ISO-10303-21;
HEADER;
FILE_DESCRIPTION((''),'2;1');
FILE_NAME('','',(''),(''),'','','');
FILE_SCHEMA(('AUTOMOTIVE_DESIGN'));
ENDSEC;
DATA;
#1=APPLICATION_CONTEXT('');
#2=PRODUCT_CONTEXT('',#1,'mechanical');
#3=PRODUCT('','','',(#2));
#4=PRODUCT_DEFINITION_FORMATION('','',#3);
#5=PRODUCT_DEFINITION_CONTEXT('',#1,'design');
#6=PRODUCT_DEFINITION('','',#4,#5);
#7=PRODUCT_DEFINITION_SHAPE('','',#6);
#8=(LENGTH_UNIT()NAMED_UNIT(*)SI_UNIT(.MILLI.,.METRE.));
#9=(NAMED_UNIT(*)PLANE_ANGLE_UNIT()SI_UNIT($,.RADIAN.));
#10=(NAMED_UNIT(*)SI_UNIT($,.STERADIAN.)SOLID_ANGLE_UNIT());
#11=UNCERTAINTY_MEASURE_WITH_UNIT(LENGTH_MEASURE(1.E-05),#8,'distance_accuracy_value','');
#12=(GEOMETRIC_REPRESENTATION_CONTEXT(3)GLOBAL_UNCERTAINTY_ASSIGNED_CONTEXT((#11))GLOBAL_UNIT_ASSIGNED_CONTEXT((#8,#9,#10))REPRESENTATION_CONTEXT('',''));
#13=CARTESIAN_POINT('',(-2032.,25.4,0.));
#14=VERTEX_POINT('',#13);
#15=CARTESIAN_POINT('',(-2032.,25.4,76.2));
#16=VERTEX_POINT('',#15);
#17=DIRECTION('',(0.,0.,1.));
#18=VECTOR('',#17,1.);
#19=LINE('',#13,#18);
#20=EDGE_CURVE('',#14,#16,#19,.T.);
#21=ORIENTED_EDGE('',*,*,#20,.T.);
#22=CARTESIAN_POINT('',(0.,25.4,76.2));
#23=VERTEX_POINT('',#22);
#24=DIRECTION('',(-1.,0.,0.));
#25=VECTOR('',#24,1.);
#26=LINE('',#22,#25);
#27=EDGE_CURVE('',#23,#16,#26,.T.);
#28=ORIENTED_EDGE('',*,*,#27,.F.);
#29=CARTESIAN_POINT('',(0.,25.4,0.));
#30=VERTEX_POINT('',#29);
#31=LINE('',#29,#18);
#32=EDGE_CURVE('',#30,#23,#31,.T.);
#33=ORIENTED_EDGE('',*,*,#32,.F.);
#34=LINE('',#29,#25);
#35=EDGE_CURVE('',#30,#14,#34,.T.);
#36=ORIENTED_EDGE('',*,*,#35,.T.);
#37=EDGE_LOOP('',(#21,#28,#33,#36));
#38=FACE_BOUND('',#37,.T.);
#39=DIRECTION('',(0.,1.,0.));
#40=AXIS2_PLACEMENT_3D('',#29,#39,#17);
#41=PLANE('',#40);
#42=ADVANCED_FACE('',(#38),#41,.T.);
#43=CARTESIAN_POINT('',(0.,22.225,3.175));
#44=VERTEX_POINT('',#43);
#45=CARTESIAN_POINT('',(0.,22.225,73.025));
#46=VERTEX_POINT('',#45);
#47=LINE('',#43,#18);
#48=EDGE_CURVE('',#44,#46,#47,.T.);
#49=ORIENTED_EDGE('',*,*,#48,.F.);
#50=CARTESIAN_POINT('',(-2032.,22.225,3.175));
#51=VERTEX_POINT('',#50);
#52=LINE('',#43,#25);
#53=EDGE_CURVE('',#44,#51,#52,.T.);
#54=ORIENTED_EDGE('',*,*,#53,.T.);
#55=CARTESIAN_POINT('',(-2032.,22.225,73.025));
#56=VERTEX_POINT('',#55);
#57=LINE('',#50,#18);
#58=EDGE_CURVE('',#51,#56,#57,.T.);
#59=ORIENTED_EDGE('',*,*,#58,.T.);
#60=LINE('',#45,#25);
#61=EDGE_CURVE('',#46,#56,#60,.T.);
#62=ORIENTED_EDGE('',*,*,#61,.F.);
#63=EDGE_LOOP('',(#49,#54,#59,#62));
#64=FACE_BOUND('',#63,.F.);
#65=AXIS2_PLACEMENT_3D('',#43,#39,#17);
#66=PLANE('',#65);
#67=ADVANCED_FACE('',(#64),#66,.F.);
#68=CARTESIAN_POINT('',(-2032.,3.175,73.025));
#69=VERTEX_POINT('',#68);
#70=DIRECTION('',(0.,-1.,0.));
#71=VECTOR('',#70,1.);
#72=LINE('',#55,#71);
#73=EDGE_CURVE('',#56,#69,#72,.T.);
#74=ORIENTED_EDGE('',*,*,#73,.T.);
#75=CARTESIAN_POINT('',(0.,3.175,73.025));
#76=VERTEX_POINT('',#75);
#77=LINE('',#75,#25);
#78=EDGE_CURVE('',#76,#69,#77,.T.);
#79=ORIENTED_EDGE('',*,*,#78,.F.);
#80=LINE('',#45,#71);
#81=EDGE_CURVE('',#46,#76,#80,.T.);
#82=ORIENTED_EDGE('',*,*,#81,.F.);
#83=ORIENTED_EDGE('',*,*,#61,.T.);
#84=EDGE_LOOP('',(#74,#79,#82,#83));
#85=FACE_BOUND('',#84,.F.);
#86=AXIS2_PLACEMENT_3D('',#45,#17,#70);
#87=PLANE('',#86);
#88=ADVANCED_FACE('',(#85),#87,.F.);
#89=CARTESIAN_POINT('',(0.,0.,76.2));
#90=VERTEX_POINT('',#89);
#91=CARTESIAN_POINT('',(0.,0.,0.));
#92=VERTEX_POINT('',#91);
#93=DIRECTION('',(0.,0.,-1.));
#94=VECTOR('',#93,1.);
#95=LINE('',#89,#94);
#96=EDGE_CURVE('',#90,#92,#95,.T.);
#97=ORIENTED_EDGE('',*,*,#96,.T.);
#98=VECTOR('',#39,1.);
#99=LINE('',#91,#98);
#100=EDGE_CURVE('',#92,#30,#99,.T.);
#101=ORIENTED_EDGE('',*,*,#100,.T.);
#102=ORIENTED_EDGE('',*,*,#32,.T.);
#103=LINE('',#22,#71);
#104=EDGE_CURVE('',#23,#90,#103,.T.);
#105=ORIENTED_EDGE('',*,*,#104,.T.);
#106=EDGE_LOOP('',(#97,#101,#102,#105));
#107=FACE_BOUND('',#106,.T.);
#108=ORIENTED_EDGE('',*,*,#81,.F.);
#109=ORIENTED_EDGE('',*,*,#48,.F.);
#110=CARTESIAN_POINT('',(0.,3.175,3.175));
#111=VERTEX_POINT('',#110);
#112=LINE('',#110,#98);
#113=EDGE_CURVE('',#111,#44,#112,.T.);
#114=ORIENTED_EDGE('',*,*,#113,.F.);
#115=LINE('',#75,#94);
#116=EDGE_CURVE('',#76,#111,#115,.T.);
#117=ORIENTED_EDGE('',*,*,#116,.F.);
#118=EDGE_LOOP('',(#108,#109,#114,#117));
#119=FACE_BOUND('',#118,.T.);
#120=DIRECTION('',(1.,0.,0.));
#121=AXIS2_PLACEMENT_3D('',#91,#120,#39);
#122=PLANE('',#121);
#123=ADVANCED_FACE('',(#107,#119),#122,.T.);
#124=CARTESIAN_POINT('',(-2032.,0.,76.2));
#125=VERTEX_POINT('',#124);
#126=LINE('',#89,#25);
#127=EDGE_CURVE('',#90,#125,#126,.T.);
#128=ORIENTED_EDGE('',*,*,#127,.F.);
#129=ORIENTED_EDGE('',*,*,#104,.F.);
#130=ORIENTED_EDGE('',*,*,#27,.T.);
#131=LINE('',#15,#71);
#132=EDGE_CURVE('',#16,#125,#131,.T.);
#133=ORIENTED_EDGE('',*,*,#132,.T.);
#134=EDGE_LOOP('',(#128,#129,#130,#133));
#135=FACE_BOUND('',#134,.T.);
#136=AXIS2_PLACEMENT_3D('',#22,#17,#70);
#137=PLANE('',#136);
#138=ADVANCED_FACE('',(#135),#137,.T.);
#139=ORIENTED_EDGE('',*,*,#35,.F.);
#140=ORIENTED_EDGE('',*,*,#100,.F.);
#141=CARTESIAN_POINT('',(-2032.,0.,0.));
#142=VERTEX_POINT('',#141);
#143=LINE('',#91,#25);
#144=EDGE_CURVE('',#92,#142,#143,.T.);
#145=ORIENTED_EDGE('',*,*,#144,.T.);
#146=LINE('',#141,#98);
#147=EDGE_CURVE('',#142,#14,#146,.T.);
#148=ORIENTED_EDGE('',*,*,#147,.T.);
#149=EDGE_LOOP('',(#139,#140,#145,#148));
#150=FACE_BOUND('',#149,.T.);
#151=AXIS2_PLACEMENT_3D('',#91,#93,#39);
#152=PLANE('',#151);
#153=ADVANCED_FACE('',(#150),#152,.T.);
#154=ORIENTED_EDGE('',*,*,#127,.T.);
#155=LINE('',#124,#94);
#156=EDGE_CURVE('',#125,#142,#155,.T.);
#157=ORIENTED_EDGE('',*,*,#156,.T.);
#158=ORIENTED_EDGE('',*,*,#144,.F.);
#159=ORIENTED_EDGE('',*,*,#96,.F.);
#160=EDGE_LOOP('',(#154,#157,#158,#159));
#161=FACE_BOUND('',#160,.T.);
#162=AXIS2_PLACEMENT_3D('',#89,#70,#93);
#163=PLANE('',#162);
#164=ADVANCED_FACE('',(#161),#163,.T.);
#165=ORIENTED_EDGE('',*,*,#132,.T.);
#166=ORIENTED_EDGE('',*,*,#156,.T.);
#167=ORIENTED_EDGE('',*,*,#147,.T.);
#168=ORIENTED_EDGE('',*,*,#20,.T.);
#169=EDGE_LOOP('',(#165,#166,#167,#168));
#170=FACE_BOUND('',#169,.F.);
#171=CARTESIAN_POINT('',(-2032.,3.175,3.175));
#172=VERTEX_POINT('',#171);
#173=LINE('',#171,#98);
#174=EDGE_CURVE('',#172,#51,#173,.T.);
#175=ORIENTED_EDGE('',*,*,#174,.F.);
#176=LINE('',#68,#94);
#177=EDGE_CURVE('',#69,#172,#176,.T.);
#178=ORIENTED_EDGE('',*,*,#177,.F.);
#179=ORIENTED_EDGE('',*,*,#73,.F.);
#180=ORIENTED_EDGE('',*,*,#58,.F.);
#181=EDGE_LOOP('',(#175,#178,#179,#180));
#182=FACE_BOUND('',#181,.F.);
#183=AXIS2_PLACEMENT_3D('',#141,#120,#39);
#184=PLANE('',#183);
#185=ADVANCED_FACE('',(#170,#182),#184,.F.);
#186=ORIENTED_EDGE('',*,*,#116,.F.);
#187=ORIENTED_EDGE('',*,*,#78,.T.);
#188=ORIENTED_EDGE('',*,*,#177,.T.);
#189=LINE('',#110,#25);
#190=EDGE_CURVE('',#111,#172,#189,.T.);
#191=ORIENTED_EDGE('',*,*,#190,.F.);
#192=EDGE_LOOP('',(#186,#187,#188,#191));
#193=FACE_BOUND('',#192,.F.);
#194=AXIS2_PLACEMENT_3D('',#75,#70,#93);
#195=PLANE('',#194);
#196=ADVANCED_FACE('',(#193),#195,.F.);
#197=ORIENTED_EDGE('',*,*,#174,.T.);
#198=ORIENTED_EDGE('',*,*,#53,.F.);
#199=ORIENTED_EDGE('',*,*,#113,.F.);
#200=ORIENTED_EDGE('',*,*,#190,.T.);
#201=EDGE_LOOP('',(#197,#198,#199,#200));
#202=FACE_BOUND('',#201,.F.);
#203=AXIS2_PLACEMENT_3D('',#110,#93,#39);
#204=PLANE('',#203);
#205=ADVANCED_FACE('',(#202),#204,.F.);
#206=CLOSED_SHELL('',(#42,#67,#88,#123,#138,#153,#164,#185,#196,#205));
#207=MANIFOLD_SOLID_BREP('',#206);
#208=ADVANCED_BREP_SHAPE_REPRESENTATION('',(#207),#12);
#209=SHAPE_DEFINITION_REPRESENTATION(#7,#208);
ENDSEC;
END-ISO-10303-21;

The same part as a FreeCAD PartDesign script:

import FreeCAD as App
import Part
import Sketcher

V = App.Vector
Q = App.Units.Quantity


def add_polygon(sketch, points):
    """Adds a closed chain of lines whose ends are joined by coincident constraints."""
    first, n = sketch.GeometryCount, len(points)
    for a, b in zip(points, points[1:] + points[:1]):
        sketch.addGeometry(Part.LineSegment(App.Vector(*a, 0), App.Vector(*b, 0)), False)
    for i in range(n):
        sketch.addConstraint(Sketcher.Constraint("Coincident", first + i, 2, first + (i + 1) % n, 1))

doc = App.newDocument("Part")
body = doc.addObject("PartDesign::Body", "Body")

# Sketch on YZ plane
sketch1 = doc.addObject("Sketcher::SketchObject", "Sketch")
body.addObject(sketch1)
sketch1.AttachmentSupport = (doc.YZ_Plane, [""])
sketch1.MapMode = "FlatFace"
add_polygon(sketch1, [(0, 76), (0, 0), (25, 0), (25, 76)])  # lines 0-3
add_polygon(sketch1, [(22, 3), (3, 3), (3, 73), (22, 73)])  # lines 4-7
sketch1.addConstraint(Sketcher.Constraint("Vertical", 0))
sketch1.addConstraint(Sketcher.Constraint("Horizontal", 1))
sketch1.addConstraint(Sketcher.Constraint("Vertical", 2))
sketch1.addConstraint(Sketcher.Constraint("Horizontal", 3))
sketch1.addConstraint(Sketcher.Constraint("Horizontal", 4))
sketch1.addConstraint(Sketcher.Constraint("Vertical", 5))
sketch1.addConstraint(Sketcher.Constraint("Horizontal", 6))
sketch1.addConstraint(Sketcher.Constraint("Vertical", 7))
sketch1.addConstraint(Sketcher.Constraint("Coincident", 0, 2, -1, 1))
sketch1.addConstraint(Sketcher.Constraint("DistanceX", 1, 1, 1, 2, Q("1 in")))
sketch1.addConstraint(Sketcher.Constraint("DistanceY", 0, 2, 0, 1, Q("3 in")))
sketch1.addConstraint(Sketcher.Constraint("DistanceX", -1, 1, 4, 2, Q("0.125 in")))
sketch1.addConstraint(Sketcher.Constraint("DistanceY", -1, 1, 4, 2, Q("0.125 in")))
sketch1.addConstraint(Sketcher.Constraint("DistanceY", 5, 2, 3, 2, Q("0.125 in")))
sketch1.addConstraint(Sketcher.Constraint("DistanceX", 6, 2, 2, 2, Q("0.125 in")))
pad1 = doc.addObject("PartDesign::Pad", "Pad")
body.addObject(pad1)
pad1.Profile = sketch1
pad1.Length = Q("80 in")
pad1.Reversed = True

doc.recompute()
